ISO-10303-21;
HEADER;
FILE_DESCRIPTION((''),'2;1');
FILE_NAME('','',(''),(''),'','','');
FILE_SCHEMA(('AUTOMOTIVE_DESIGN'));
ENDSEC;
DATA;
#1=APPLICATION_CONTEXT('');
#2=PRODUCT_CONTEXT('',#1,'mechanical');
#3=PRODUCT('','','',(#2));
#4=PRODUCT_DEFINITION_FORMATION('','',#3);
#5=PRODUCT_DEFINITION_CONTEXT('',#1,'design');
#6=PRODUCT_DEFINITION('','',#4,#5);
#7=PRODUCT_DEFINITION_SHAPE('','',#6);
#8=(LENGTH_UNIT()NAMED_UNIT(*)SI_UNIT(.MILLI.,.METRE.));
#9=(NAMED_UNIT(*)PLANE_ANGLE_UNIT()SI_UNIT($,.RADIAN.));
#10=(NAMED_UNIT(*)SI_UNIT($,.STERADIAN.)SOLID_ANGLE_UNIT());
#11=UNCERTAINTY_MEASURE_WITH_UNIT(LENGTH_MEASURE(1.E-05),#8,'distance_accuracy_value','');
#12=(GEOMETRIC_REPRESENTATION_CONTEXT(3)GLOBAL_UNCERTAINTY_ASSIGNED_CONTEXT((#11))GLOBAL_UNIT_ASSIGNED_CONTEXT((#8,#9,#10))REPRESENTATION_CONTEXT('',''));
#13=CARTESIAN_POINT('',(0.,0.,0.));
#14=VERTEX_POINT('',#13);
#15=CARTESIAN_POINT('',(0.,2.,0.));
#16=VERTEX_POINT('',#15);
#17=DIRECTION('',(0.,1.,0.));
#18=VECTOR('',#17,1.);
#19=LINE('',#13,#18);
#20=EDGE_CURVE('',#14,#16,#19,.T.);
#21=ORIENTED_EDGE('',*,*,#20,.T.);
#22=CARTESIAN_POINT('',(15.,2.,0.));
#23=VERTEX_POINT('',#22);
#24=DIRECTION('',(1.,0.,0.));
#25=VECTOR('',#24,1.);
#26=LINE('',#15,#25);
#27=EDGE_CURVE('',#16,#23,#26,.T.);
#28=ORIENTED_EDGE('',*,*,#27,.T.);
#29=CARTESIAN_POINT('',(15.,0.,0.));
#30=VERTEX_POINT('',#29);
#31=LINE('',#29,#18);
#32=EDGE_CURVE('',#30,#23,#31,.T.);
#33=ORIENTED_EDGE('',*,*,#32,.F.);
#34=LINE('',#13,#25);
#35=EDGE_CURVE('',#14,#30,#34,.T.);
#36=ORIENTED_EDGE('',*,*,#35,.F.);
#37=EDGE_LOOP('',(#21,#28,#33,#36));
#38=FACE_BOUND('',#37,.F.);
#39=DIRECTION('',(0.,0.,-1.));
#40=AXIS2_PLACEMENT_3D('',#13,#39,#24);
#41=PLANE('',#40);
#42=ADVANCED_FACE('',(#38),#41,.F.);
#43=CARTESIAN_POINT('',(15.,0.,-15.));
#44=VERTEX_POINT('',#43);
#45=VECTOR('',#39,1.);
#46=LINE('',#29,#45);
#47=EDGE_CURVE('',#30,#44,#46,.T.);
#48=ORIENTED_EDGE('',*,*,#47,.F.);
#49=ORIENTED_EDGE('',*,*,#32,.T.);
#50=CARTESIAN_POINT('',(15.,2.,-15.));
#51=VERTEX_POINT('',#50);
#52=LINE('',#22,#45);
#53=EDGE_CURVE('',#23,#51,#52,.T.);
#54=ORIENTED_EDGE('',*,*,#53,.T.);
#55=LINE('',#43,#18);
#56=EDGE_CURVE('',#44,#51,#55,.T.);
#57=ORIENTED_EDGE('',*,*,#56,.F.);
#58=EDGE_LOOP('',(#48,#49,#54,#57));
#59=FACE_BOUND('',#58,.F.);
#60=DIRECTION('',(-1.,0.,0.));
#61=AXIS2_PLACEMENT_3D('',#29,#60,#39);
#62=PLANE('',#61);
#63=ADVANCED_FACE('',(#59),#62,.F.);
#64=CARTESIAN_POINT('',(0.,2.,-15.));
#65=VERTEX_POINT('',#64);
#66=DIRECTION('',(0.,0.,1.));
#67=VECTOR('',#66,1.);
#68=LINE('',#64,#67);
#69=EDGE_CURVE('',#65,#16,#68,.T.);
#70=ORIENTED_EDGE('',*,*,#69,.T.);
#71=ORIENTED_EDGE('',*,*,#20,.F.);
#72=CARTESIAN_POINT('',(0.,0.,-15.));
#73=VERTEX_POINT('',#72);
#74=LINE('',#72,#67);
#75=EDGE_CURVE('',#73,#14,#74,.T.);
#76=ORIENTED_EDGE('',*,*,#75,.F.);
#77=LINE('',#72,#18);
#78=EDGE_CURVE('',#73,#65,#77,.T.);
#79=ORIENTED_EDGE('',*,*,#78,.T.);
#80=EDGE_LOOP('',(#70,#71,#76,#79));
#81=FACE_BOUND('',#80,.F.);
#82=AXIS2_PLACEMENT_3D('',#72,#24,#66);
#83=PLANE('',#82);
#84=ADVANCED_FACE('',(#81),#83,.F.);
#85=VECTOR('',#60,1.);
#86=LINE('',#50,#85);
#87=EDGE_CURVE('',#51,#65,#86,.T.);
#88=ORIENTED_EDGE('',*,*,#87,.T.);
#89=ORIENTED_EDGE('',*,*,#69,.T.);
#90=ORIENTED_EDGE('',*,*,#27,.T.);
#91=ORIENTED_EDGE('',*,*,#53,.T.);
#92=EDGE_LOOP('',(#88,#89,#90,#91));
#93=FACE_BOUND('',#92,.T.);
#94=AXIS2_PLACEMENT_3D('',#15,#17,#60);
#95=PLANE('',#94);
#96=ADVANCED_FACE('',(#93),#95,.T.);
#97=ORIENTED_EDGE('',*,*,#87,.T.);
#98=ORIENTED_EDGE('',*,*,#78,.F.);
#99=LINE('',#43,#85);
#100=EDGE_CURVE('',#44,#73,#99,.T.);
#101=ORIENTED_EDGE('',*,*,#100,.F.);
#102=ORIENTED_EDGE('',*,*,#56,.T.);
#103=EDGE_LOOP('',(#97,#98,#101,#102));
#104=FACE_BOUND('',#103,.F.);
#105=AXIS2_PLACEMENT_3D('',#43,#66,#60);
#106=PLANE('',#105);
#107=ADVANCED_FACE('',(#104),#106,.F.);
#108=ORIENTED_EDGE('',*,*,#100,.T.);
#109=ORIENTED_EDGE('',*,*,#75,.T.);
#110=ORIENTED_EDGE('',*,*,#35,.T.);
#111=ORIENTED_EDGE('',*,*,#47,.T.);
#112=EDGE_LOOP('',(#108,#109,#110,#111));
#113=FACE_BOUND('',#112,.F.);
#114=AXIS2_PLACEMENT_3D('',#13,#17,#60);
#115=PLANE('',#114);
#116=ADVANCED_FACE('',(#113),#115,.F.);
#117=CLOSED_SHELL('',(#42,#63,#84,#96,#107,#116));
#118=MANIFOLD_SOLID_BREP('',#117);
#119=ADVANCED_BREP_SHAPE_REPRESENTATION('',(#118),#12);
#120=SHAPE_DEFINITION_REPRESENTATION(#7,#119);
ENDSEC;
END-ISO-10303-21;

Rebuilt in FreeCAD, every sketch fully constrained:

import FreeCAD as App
import Part
import Sketcher
from FreeCAD import Vector

doc = App.newDocument("Part")
body = doc.addObject("PartDesign::Body", "Body")

sketch1 = body.newObject("Sketcher::SketchObject", "Sketch")
sketch1.AttachmentSupport = (doc.getObject("XZ_Plane"), [""])
sketch1.MapMode = "FlatFace"
sketch1.addGeometry([
    Part.LineSegment(Vector(0, -15, 0), Vector(0, 0, 0)),
    Part.LineSegment(Vector(0, 0, 0), Vector(15, 0, 0)),
    Part.LineSegment(Vector(15, 0, 0), Vector(15, -15, 0)),
    Part.LineSegment(Vector(15, -15, 0), Vector(0, -15, 0)),
], False)
sketch1.addConstraint([
    Sketcher.Constraint("Coincident", 0, 2, 1, 1),
    Sketcher.Constraint("Coincident", 1, 2, 2, 1),
    Sketcher.Constraint("Coincident", 2, 2, 3, 1),
    Sketcher.Constraint("Coincident", 3, 2, 0, 1),
    Sketcher.Constraint("Vertical", 0),
    Sketcher.Constraint("Horizontal", 1),
    Sketcher.Constraint("Vertical", 2),
    Sketcher.Constraint("Horizontal", 3),
    Sketcher.Constraint("Coincident", 0, 2, -1, 1),
    Sketcher.Constraint("Equal", 3, 0),
    Sketcher.Constraint("DistanceX", 1, 1, 1, 2, 15.0),
])
pad1 = body.newObject("PartDesign::Pad", "Pad")
pad1.Profile = sketch1
pad1.Length = 2
pad1.Reversed = True

doc.recompute()
